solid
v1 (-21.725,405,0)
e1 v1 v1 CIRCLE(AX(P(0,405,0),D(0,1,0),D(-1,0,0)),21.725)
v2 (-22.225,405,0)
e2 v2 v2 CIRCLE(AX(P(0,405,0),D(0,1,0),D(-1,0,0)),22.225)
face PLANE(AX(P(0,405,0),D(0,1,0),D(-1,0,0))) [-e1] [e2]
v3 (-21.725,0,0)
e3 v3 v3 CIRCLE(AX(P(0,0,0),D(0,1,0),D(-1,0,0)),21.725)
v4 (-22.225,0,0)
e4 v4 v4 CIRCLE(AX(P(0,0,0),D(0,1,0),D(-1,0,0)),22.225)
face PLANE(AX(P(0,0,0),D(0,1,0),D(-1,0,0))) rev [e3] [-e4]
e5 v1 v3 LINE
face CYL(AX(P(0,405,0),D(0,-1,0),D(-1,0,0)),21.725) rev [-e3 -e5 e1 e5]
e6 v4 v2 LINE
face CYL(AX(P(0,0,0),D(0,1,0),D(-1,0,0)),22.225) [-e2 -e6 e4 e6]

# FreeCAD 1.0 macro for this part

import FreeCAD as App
import Part
import Sketcher

V = App.Vector
Q = App.Units.Quantity

doc = App.newDocument("Part")
params = doc.addObject("Spreadsheet::Sheet", "Params")
for row, (alias, value) in enumerate([
    ("sketch1_height", "405 mm"),
    ("sketch1_width", "0.5 mm"),
    ("revolution_angle", "360 deg"),
], start=1):
    params.set(f"A{row}", alias)
    params.set(f"B{row}", "=" + value)
    params.setAlias(f"B{row}", alias)

body = doc.addObject("PartDesign::Body", "Body")

# Sketch on XY plane
sketch1 = doc.addObject("Sketcher::SketchObject", "Sketch")
body.addObject(sketch1)
sketch1.AttachmentSupport = (doc.XY_Plane, [""])
sketch1.MapMode = "FlatFace"
sketch1.addGeometry([
    Part.LineSegment(V(-22.225, 0, 0), V(-21.725, 0, 0)),
    Part.LineSegment(V(-21.725, 0, 0), V(-21.725, 405, 0)),
    Part.LineSegment(V(-21.725, 405, 0), V(-22.225, 405, 0)),
    Part.LineSegment(V(-22.225, 405, 0), V(-22.225, 0, 0)),
], False)
sketch1.addConstraint([
    Sketcher.Constraint("Coincident", 0, 2, 1, 1),
    Sketcher.Constraint("Coincident", 1, 2, 2, 1),
    Sketcher.Constraint("Coincident", 2, 2, 3, 1),
    Sketcher.Constraint("Coincident", 3, 2, 0, 1),
    Sketcher.Constraint("Horizontal", 0),
    Sketcher.Constraint("Vertical", 1),
    Sketcher.Constraint("Horizontal", 2),
    Sketcher.Constraint("Vertical", 3),
    Sketcher.Constraint("PointOnObject", 0, 2, -1),
    Sketcher.Constraint("DistanceY", 1, 1, 1, 2, Q("405 mm")),
    Sketcher.Constraint("DistanceX", 0, 1, 0, 2, Q("0.5 mm")),
    Sketcher.Constraint("DistanceX", 2, 2, -1, 1, Q("22.225 mm")),
])
sketch1.setExpression("Constraints[9]", "Params.sketch1_height")
sketch1.setExpression("Constraints[10]", "Params.sketch1_width")
revolution = doc.addObject("PartDesign::Revolution", "Revolution")
body.addObject(revolution)
revolution.Profile = sketch1
revolution.ReferenceAxis = (sketch1, ["V_Axis"])
revolution.setExpression("Angle", "Params.revolution_angle")

doc.recompute()
